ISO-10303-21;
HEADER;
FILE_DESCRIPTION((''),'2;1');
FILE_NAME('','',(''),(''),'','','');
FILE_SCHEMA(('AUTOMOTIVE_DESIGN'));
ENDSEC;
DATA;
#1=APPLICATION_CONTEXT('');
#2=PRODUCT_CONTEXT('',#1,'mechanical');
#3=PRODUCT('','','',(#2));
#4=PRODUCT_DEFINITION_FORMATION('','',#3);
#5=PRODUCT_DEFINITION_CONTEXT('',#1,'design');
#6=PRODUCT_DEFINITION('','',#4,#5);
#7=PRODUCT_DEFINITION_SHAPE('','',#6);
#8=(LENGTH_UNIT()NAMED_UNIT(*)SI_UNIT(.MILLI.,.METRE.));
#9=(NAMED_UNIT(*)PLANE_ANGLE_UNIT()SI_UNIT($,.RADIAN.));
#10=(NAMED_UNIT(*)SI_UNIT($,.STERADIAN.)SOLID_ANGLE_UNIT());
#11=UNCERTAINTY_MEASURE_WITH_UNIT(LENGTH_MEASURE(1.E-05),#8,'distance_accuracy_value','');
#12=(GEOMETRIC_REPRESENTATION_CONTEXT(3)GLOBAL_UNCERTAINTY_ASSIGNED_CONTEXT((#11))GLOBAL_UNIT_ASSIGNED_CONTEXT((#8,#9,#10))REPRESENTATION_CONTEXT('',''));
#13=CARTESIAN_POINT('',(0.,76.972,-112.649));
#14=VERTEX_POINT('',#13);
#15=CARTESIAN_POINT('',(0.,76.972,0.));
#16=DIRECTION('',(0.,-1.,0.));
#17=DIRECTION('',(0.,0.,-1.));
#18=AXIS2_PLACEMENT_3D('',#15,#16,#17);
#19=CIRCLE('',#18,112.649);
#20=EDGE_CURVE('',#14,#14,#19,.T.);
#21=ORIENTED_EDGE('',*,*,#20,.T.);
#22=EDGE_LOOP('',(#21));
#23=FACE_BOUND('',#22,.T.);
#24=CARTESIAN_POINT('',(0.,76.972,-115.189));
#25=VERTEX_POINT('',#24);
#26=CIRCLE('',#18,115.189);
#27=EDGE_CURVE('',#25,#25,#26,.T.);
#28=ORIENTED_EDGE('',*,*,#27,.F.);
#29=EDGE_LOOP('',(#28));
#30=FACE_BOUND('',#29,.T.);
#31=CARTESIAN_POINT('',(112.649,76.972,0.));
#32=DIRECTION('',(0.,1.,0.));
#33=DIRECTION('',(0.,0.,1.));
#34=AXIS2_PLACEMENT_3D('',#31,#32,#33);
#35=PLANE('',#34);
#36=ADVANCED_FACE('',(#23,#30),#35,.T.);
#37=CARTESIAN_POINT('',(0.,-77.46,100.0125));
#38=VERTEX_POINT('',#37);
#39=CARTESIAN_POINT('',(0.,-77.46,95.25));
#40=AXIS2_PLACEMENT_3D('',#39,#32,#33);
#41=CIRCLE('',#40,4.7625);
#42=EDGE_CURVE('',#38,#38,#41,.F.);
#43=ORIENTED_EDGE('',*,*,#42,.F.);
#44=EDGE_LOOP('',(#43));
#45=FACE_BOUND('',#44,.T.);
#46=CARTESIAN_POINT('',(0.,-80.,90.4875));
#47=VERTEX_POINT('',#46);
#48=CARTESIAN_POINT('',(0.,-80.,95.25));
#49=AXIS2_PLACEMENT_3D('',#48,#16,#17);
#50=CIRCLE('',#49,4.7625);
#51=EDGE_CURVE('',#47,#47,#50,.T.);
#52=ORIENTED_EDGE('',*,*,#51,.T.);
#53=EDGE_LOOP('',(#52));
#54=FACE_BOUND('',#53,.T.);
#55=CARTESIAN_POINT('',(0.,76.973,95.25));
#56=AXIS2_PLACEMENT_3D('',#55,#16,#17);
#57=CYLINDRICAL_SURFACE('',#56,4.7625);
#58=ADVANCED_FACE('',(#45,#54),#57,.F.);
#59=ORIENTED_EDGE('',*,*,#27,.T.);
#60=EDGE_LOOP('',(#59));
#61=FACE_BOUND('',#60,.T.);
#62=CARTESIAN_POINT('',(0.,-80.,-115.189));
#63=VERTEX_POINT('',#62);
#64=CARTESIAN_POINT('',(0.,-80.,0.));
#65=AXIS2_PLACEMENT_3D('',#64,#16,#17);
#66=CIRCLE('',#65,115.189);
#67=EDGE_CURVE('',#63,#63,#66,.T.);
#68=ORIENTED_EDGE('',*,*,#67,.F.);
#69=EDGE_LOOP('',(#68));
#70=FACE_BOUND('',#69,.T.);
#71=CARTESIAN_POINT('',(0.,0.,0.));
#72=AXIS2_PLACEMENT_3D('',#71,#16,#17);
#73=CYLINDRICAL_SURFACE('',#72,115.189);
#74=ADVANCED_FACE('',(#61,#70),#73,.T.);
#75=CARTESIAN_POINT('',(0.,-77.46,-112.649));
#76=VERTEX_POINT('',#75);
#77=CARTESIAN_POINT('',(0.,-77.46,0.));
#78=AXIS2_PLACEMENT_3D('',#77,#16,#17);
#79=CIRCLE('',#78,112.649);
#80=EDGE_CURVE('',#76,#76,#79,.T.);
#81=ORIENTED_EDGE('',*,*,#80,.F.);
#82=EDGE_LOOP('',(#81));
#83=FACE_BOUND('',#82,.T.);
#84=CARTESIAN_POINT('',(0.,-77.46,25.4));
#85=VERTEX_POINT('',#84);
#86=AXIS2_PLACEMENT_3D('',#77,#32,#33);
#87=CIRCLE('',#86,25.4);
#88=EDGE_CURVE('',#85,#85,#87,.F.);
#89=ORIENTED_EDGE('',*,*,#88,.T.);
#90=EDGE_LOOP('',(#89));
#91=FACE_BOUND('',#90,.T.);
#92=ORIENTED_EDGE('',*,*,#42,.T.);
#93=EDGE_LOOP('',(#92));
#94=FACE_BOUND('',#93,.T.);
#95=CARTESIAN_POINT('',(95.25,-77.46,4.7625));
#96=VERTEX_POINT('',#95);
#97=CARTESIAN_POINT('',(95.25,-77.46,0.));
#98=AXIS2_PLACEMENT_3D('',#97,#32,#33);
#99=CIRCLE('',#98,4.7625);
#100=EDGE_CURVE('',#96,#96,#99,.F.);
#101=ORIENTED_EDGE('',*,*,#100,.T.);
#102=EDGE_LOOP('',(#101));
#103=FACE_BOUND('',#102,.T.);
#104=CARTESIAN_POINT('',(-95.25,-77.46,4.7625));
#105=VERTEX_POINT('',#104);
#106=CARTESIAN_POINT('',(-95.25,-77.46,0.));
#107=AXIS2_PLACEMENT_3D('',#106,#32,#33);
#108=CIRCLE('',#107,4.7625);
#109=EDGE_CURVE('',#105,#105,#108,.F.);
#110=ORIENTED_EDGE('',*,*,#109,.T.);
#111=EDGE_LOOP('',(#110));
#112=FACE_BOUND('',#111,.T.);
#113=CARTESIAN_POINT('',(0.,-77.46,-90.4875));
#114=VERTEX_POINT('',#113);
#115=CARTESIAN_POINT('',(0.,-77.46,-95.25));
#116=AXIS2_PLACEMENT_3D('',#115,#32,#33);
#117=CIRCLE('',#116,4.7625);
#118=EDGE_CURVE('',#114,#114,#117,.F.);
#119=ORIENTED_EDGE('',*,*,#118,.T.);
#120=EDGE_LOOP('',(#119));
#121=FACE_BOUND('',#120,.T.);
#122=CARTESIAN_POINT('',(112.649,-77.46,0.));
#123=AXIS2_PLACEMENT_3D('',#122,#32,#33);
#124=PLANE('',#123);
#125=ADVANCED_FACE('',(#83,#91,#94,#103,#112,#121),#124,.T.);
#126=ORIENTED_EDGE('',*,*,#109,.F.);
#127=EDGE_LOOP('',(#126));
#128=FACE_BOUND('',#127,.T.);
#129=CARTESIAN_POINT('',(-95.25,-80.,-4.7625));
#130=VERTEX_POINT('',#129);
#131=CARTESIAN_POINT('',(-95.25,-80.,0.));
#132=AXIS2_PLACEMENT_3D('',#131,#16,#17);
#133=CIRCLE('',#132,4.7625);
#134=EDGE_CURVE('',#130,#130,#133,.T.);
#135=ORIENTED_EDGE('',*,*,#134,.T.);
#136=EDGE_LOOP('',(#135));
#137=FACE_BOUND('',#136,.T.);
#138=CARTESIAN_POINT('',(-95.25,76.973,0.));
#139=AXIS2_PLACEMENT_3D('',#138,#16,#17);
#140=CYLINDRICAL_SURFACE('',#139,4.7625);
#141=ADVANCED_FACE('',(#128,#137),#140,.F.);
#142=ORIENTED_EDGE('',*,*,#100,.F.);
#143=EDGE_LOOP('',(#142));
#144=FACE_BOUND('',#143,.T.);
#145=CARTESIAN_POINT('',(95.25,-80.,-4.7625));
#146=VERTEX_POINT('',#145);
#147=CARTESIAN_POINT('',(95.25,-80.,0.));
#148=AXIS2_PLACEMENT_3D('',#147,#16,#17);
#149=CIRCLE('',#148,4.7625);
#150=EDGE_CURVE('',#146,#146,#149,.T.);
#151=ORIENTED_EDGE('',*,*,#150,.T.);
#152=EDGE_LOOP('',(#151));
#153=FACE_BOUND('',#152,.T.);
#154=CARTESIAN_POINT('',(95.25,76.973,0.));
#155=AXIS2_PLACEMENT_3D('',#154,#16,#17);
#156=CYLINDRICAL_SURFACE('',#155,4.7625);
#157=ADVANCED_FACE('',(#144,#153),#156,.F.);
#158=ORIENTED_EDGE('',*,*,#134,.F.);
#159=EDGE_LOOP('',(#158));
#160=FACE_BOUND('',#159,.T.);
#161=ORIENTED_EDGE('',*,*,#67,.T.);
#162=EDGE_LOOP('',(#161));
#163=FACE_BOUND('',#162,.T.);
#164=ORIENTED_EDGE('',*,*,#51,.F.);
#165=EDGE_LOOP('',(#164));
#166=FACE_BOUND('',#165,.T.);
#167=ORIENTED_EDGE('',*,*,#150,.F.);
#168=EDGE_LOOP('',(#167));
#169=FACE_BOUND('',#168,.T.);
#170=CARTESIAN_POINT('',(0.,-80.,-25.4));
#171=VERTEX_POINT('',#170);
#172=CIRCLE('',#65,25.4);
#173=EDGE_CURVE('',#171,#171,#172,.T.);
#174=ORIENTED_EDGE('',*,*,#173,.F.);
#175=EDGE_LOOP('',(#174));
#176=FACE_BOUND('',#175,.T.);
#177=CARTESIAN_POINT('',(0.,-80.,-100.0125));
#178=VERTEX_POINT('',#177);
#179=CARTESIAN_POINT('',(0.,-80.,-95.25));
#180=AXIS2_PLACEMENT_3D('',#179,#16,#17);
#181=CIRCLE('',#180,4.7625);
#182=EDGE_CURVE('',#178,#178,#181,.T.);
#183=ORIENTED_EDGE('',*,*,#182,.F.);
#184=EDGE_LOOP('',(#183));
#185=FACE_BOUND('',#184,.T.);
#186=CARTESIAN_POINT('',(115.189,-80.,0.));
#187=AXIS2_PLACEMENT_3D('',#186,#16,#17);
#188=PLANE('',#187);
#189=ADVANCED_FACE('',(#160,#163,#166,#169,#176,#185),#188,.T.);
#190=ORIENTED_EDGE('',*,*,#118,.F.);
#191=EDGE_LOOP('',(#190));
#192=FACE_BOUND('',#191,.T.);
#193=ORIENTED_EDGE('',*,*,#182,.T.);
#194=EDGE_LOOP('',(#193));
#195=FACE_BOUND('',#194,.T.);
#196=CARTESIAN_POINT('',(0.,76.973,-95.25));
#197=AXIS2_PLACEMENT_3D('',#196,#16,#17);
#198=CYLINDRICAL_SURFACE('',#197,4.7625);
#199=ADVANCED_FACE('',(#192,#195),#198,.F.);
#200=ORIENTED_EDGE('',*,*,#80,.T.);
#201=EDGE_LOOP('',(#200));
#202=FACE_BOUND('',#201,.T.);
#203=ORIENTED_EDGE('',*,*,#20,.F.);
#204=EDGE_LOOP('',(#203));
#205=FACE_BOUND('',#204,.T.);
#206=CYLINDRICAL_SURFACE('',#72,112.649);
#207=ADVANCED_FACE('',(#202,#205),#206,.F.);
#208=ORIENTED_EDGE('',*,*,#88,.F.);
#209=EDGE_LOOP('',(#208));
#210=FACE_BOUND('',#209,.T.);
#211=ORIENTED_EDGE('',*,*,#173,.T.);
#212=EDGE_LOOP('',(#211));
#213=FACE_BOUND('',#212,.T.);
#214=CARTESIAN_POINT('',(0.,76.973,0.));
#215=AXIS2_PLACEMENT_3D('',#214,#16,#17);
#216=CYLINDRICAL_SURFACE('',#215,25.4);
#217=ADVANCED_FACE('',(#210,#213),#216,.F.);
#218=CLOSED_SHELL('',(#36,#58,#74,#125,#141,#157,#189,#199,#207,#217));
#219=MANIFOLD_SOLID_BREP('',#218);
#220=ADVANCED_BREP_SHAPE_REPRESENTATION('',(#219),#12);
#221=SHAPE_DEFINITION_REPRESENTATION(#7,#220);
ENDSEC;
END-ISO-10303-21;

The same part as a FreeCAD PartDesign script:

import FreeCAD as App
import Part
import Sketcher

V = App.Vector
Q = App.Units.Quantity

doc = App.newDocument("Part")
params = doc.addObject("Spreadsheet::Sheet", "Params")
for row, (alias, value) in enumerate([
    ("sketch1_width", "0.1 in"),
    ("sketch1_height", "6.18 in"),
    ("sketch1_width2", "4.535 in"),
    ("revolution_angle", "360 deg"),
    ("sketch2_diameter", "2 in"),
    ("sketch3_diameter", "0.375 in"),
    ("sketch4_diameter", "0.375 in"),
    ("sketch5_diameter", "0.375 in"),
    ("sketch6_diameter", "0.375 in"),
], start=1):
    params.set(f"A{row}", alias)
    params.set(f"B{row}", "=" + value)
    params.setAlias(f"B{row}", alias)

body = doc.addObject("PartDesign::Body", "Body")

sketch1 = body.newObject("Sketcher::SketchObject", "Sketch")
sketch1.AttachmentSupport = (doc.getObject("XY_Plane"), [""])
sketch1.MapMode = "FlatFace"
sketch1.addGeometry(Part.LineSegment(V(0, -80, 0), V(115.189, -80, 0)), False)
sketch1.addGeometry(Part.LineSegment(V(115.189, -80, 0), V(115.189, 76.972, 0)), False)
sketch1.addGeometry(Part.LineSegment(V(115.189, 76.972, 0), V(112.649, 76.972, 0)), False)
sketch1.addGeometry(Part.LineSegment(V(112.649, 76.972, 0), V(112.649, -77.46, 0)), False)
sketch1.addGeometry(Part.LineSegment(V(112.649, -77.46, 0), V(0, -77.46, 0)), False)
sketch1.addGeometry(Part.LineSegment(V(0, -77.46, 0), V(0, -80, 0)), False)
sketch1.addConstraint(Sketcher.Constraint("Coincident", 0, 2, 1, 1))
sketch1.addConstraint(Sketcher.Constraint("Coincident", 1, 2, 2, 1))
sketch1.addConstraint(Sketcher.Constraint("Coincident", 2, 2, 3, 1))
sketch1.addConstraint(Sketcher.Constraint("Coincident", 3, 2, 4, 1))
sketch1.addConstraint(Sketcher.Constraint("Coincident", 4, 2, 5, 1))
sketch1.addConstraint(Sketcher.Constraint("Coincident", 5, 2, 0, 1))
sketch1.addConstraint(Sketcher.Constraint("Horizontal", 0))
sketch1.addConstraint(Sketcher.Constraint("Vertical", 1))
sketch1.addConstraint(Sketcher.Constraint("Horizontal", 2))
sketch1.addConstraint(Sketcher.Constraint("Vertical", 3))
sketch1.addConstraint(Sketcher.Constraint("Horizontal", 4))
sketch1.addConstraint(Sketcher.Constraint("Vertical", 5))
sketch1.addConstraint(Sketcher.Constraint("PointOnObject", 4, 2, -2))
sketch1.addConstraint(Sketcher.Constraint("Equal", 2, 5))
sketch1.addConstraint(Sketcher.Constraint("DistanceX", 2, 2, 2, 1, Q("0.1 in")))
sketch1.addConstraint(Sketcher.Constraint("DistanceY", 1, 1, 1, 2, Q("6.18 in")))
sketch1.addConstraint(Sketcher.Constraint("DistanceX", 0, 1, 0, 2, Q("4.535 in")))
sketch1.addConstraint(Sketcher.Constraint("DistanceY", 0, 2, -1, 1, 80.0))
sketch1.setExpression("Constraints[14]", "Params.sketch1_width")
sketch1.setExpression("Constraints[15]", "Params.sketch1_height")
sketch1.setExpression("Constraints[16]", "Params.sketch1_width2")
revolution = body.newObject("PartDesign::Revolution", "Revolution")
revolution.Profile = sketch1
revolution.ReferenceAxis = (sketch1, ["V_Axis"])
revolution.setExpression("Angle", "Params.revolution_angle")

sketch2 = body.newObject("Sketcher::SketchObject", "Sketch001")
sketch2.AttachmentSupport = (doc.getObject("XZ_Plane"), [""])
sketch2.MapMode = "FlatFace"
sketch2.AttachmentOffset = App.Placement(V(0, 0, 80), App.Rotation())
sketch2.addGeometry(Part.Circle(V(0, 0, 0), V(0, 0, 1), 25.4), False)
sketch2.addConstraint(Sketcher.Constraint("Coincident", 0, 3, -1, 1))
sketch2.addConstraint(Sketcher.Constraint("Diameter", 0, Q("2 in")))
sketch2.setExpression("Constraints[1]", "Params.sketch2_diameter")
pocket1 = body.newObject("PartDesign::Pocket", "Pocket")
pocket1.Profile = sketch2
pocket1.Type = "UpToFirst"

sketch3 = body.newObject("Sketcher::SketchObject", "Sketch002")
sketch3.AttachmentSupport = (doc.getObject("XZ_Plane"), [""])
sketch3.MapMode = "FlatFace"
sketch3.AttachmentOffset = App.Placement(V(0, 0, 80), App.Rotation())
sketch3.addGeometry(Part.Circle(V(0, 95.25, 0), V(0, 0, 1), 4.7625), False)
sketch3.addConstraint(Sketcher.Constraint("PointOnObject", 0, 3, -2))
sketch3.addConstraint(Sketcher.Constraint("Diameter", 0, Q("0.375 in")))
sketch3.addConstraint(Sketcher.Constraint("DistanceY", -1, 1, 0, 3, Q("3.75 in")))
sketch3.setExpression("Constraints[1]", "Params.sketch3_diameter")
pocket2 = body.newObject("PartDesign::Pocket", "Pocket001")
pocket2.Profile = sketch3
pocket2.Type = "UpToFirst"

sketch4 = body.newObject("Sketcher::SketchObject", "Sketch003")
sketch4.AttachmentSupport = (doc.getObject("XZ_Plane"), [""])
sketch4.MapMode = "FlatFace"
sketch4.AttachmentOffset = App.Placement(V(0, 0, 80), App.Rotation())
sketch4.addGeometry(Part.Circle(V(95.25, 0, 0), V(0, 0, 1), 4.7625), False)
sketch4.addConstraint(Sketcher.Constraint("PointOnObject", 0, 3, -1))
sketch4.addConstraint(Sketcher.Constraint("Diameter", 0, Q("0.375 in")))
sketch4.addConstraint(Sketcher.Constraint("DistanceX", -1, 1, 0, 3, Q("3.75 in")))
sketch4.setExpression("Constraints[1]", "Params.sketch4_diameter")
pocket3 = body.newObject("PartDesign::Pocket", "Pocket002")
pocket3.Profile = sketch4
pocket3.Type = "UpToFirst"

sketch5 = body.newObject("Sketcher::SketchObject", "Sketch004")
sketch5.AttachmentSupport = (doc.getObject("XZ_Plane"), [""])
sketch5.MapMode = "FlatFace"
sketch5.AttachmentOffset = App.Placement(V(0, 0, 80), App.Rotation())
sketch5.addGeometry(Part.Circle(V(0, -95.25, 0), V(0, 0, 1), 4.7625), False)
sketch5.addConstraint(Sketcher.Constraint("PointOnObject", 0, 3, -2))
sketch5.addConstraint(Sketcher.Constraint("Diameter", 0, Q("0.375 in")))
sketch5.addConstraint(Sketcher.Constraint("DistanceY", 0, 3, -1, 1, Q("3.75 in")))
sketch5.setExpression("Constraints[1]", "Params.sketch5_diameter")
pocket4 = body.newObject("PartDesign::Pocket", "Pocket003")
pocket4.Profile = sketch5
pocket4.Type = "UpToFirst"

sketch6 = body.newObject("Sketcher::SketchObject", "Sketch005")
sketch6.AttachmentSupport = (doc.getObject("XZ_Plane"), [""])
sketch6.MapMode = "FlatFace"
sketch6.AttachmentOffset = App.Placement(V(0, 0, 80), App.Rotation())
sketch6.addGeometry(Part.Circle(V(-95.25, 0, 0), V(0, 0, 1), 4.7625), False)
sketch6.addConstraint(Sketcher.Constraint("PointOnObject", 0, 3, -1))
sketch6.addConstraint(Sketcher.Constraint("Diameter", 0, Q("0.375 in")))
sketch6.addConstraint(Sketcher.Constraint("DistanceX", 0, 3, -1, 1, Q("3.75 in")))
sketch6.setExpression("Constraints[1]", "Params.sketch6_diameter")
pocket5 = body.newObject("PartDesign::Pocket", "Pocket004")
pocket5.Profile = sketch6
pocket5.Type = "UpToFirst"

doc.recompute()
